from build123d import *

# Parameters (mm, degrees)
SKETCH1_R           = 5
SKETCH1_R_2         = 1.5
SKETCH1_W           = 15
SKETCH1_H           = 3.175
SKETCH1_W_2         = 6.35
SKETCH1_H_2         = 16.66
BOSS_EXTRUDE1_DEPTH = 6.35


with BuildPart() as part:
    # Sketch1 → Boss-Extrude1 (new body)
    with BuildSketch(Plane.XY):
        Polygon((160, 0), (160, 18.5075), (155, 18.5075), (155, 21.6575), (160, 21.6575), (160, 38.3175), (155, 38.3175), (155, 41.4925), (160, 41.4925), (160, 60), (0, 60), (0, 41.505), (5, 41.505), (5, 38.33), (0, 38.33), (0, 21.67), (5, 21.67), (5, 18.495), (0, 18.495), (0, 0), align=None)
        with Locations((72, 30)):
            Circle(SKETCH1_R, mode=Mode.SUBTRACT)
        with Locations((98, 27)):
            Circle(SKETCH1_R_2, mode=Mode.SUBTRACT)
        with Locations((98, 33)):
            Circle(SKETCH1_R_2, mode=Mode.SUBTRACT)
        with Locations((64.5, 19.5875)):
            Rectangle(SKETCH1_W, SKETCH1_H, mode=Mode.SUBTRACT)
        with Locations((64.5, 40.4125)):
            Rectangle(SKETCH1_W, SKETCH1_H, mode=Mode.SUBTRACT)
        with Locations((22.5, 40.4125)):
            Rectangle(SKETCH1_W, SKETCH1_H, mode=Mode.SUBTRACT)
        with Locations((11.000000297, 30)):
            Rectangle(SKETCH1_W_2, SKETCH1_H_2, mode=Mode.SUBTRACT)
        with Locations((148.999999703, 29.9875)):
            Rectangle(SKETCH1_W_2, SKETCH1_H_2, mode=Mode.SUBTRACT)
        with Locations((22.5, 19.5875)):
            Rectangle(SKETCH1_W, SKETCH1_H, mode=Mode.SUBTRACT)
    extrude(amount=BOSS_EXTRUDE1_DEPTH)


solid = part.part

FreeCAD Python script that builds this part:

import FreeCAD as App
import Part
import Sketcher

V = App.Vector
Q = App.Units.Quantity


def add_polygon(sketch, points):
    """Adds a closed chain of lines whose ends are joined by coincident constraints."""
    first, n = sketch.GeometryCount, len(points)
    for a, b in zip(points, points[1:] + points[:1]):
        sketch.addGeometry(Part.LineSegment(App.Vector(*a, 0), App.Vector(*b, 0)), False)
    for i in range(n):
        sketch.addConstraint(Sketcher.Constraint("Coincident", first + i, 2, first + (i + 1) % n, 1))

doc = App.newDocument("Part")
body = doc.addObject("PartDesign::Body", "Body")

# Sketch on XY plane
sketch1 = body.newObject("Sketcher::SketchObject", "Sketch")
sketch1.AttachmentSupport = (doc.getObject("XY_Plane"), [""])
sketch1.MapMode = "FlatFace"
add_polygon(sketch1, [(160, 0), (160, 18.5075), (155, 18.5075), (155, 21.6575), (160, 21.6575), (160, 38.3175), (155, 38.3175), (155, 41.4925), (160, 41.4925), (160, 60), (0, 60), (0, 41.505), (5, 41.505), (5, 38.33), (0, 38.33), (0, 21.67), (5, 21.67), (5, 18.495), (0, 18.495), (0, 0)])  # lines 0-19
add_polygon(sketch1, [(30, 18), (15, 18), (15, 21.175), (30, 21.175)])  # lines 20-23
add_polygon(sketch1, [(72, 18), (57, 18), (57, 21.175), (72, 21.175)])  # lines 24-27
add_polygon(sketch1, [(14.175, 21.67), (7.825, 21.67), (7.825, 38.33), (14.175, 38.33)])  # lines 28-31
sketch1.addGeometry(Part.Circle(V(72, 30, 0), V(0, 0, 1), 5), False)  # 32
sketch1.addGeometry(Part.Circle(V(98, 27, 0), V(0, 0, 1), 1.5), False)  # 33
add_polygon(sketch1, [(152.175, 21.6575), (145.825, 21.6575), (145.825, 38.3175), (152.175, 38.3175)])  # lines 34-37
add_polygon(sketch1, [(30, 38.825), (15, 38.825), (15, 42), (30, 42)])  # lines 38-41
add_polygon(sketch1, [(72, 38.825), (57, 38.825), (57, 42), (72, 42)])  # lines 42-45
sketch1.addGeometry(Part.Circle(V(98, 33, 0), V(0, 0, 1), 1.5), False)  # 46
sketch1.addConstraint([
    Sketcher.Constraint("Vertical", 0),
    Sketcher.Constraint("Horizontal", 1),
    Sketcher.Constraint("Vertical", 2),
    Sketcher.Constraint("Horizontal", 3),
    Sketcher.Constraint("Vertical", 4),
    Sketcher.Constraint("Horizontal", 5),
    Sketcher.Constraint("Vertical", 6),
    Sketcher.Constraint("Horizontal", 7),
    Sketcher.Constraint("Vertical", 8),
    Sketcher.Constraint("Horizontal", 9),
    Sketcher.Constraint("Vertical", 10),
    Sketcher.Constraint("Horizontal", 11),
    Sketcher.Constraint("Vertical", 12),
    Sketcher.Constraint("Horizontal", 13),
    Sketcher.Constraint("Vertical", 14),
    Sketcher.Constraint("Horizontal", 15),
    Sketcher.Constraint("Vertical", 16),
    Sketcher.Constraint("Horizontal", 17),
    Sketcher.Constraint("Vertical", 18),
    Sketcher.Constraint("Horizontal", 19),
    Sketcher.Constraint("Horizontal", 20),
    Sketcher.Constraint("Vertical", 21),
    Sketcher.Constraint("Horizontal", 22),
    Sketcher.Constraint("Vertical", 23),
    Sketcher.Constraint("Horizontal", 24),
    Sketcher.Constraint("Vertical", 25),
    Sketcher.Constraint("Horizontal", 26),
    Sketcher.Constraint("Vertical", 27),
    Sketcher.Constraint("Horizontal", 28),
    Sketcher.Constraint("Vertical", 29),
    Sketcher.Constraint("Horizontal", 30),
    Sketcher.Constraint("Vertical", 31),
    Sketcher.Constraint("Horizontal", 34),
    Sketcher.Constraint("Vertical", 35),
    Sketcher.Constraint("Horizontal", 36),
    Sketcher.Constraint("Vertical", 37),
    Sketcher.Constraint("Horizontal", 38),
    Sketcher.Constraint("Vertical", 39),
    Sketcher.Constraint("Horizontal", 40),
    Sketcher.Constraint("Vertical", 41),
    Sketcher.Constraint("Horizontal", 42),
    Sketcher.Constraint("Vertical", 43),
    Sketcher.Constraint("Horizontal", 44),
    Sketcher.Constraint("Vertical", 45),
    Sketcher.Constraint("Coincident", 18, 2, -1, 1),
    Sketcher.Constraint("Equal", 33, 46),
    Sketcher.Constraint("PointOnObject", 9, 2, -2),
    Sketcher.Constraint("PointOnObject", 13, 2, -2),
    Sketcher.Constraint("Horizontal", 23, 2, 24, 2),
    Sketcher.Constraint("Horizontal", 22, 2, 25, 2),
    Sketcher.Constraint("Horizontal", 15, 2, 28, 2),
    Sketcher.Constraint("Horizontal", 13, 2, 29, 2),
    Sketcher.Constraint("Horizontal", 3, 2, 34, 2),
    Sketcher.Constraint("Horizontal", 5, 2, 35, 2),
    Sketcher.Constraint("Horizontal", 41, 2, 42, 2),
    Sketcher.Constraint("Horizontal", 40, 2, 43, 2),
    Sketcher.Constraint("Vertical", 33, 3, 46, 3),
    Sketcher.Constraint("Vertical", 0, 2, 3, 2),
    Sketcher.Constraint("Vertical", 2, 2, 5, 2),
    Sketcher.Constraint("Vertical", 4, 2, 7, 2),
    Sketcher.Constraint("Vertical", 12, 2, 15, 2),
    Sketcher.Constraint("Vertical", 32, 3, 26, 2),
    Sketcher.Constraint("Vertical", 21, 2, 38, 2),
    Sketcher.Constraint("Vertical", 23, 2, 40, 2),
    Sketcher.Constraint("Vertical", 25, 2, 42, 2),
    Sketcher.Constraint("Vertical", 27, 2, 44, 2),
    Sketcher.Constraint("Equal", 7, 11),
    Sketcher.Constraint("Equal", 22, 24),
    Sketcher.Constraint("Equal", 30, 34),
    Sketcher.Constraint("Equal", 0, 8),
    Sketcher.Constraint("Equal", 6, 12),
    Sketcher.Constraint("Equal", 4, 14),
    Sketcher.Constraint("Equal", 12, 16),
    Sketcher.Constraint("Equal", 10, 18),
    Sketcher.Constraint("Equal", 16, 21),
    Sketcher.Constraint("Equal", 27, 39),
    Sketcher.Constraint("Diameter", 32, Q("10 mm")),
    Sketcher.Constraint("Diameter", 33, Q("3 mm")),
    Sketcher.Constraint("DistanceX", 1, 2, 1, 1, Q("5 mm")),
    Sketcher.Constraint("DistanceX", 9, 2, 9, 1, Q("160 mm")),
    Sketcher.Constraint("DistanceX", 20, 2, 20, 1, Q("15 mm")),
    Sketcher.Constraint("DistanceX", -1, 1, 32, 3, Q("72 mm")),
    Sketcher.Constraint("DistanceY", -1, 1, 32, 3, Q("30 mm")),
    Sketcher.Constraint("DistanceX", -1, 1, 33, 3, Q("98 mm")),
    Sketcher.Constraint("DistanceY", -1, 1, 33, 3, Q("27 mm")),
    Sketcher.Constraint("DistanceY", -1, 1, 46, 3, Q("33 mm")),
    Sketcher.Constraint("DistanceY", -1, 1, 8, 2, Q("60 mm")),
    Sketcher.Constraint("DistanceX", -1, 1, 20, 2, Q("15 mm")),
    Sketcher.Constraint("DistanceY", -1, 1, 20, 2, Q("18 mm")),
    Sketcher.Constraint("DistanceY", -1, 1, 39, 2, Q("42 mm")),
    Sketcher.Constraint("DistanceX", 28, 2, 28, 1, Q("6.35 mm")),
    Sketcher.Constraint("DistanceY", 2, 1, 2, 2, Q("3.15 mm")),
    Sketcher.Constraint("DistanceY", 4, 1, 4, 2, Q("16.66 mm")),
    Sketcher.Constraint("DistanceY", 6, 1, 6, 2, Q("3.175 mm")),
    Sketcher.Constraint("DistanceX", -1, 1, 28, 2, Q("7.825 mm")),
    Sketcher.Constraint("DistanceX", -1, 1, 34, 2, Q("145.825 mm")),
])
pad1 = body.newObject("PartDesign::Pad", "Pad")
pad1.Profile = sketch1
pad1.Length = 6.35

doc.recompute()
